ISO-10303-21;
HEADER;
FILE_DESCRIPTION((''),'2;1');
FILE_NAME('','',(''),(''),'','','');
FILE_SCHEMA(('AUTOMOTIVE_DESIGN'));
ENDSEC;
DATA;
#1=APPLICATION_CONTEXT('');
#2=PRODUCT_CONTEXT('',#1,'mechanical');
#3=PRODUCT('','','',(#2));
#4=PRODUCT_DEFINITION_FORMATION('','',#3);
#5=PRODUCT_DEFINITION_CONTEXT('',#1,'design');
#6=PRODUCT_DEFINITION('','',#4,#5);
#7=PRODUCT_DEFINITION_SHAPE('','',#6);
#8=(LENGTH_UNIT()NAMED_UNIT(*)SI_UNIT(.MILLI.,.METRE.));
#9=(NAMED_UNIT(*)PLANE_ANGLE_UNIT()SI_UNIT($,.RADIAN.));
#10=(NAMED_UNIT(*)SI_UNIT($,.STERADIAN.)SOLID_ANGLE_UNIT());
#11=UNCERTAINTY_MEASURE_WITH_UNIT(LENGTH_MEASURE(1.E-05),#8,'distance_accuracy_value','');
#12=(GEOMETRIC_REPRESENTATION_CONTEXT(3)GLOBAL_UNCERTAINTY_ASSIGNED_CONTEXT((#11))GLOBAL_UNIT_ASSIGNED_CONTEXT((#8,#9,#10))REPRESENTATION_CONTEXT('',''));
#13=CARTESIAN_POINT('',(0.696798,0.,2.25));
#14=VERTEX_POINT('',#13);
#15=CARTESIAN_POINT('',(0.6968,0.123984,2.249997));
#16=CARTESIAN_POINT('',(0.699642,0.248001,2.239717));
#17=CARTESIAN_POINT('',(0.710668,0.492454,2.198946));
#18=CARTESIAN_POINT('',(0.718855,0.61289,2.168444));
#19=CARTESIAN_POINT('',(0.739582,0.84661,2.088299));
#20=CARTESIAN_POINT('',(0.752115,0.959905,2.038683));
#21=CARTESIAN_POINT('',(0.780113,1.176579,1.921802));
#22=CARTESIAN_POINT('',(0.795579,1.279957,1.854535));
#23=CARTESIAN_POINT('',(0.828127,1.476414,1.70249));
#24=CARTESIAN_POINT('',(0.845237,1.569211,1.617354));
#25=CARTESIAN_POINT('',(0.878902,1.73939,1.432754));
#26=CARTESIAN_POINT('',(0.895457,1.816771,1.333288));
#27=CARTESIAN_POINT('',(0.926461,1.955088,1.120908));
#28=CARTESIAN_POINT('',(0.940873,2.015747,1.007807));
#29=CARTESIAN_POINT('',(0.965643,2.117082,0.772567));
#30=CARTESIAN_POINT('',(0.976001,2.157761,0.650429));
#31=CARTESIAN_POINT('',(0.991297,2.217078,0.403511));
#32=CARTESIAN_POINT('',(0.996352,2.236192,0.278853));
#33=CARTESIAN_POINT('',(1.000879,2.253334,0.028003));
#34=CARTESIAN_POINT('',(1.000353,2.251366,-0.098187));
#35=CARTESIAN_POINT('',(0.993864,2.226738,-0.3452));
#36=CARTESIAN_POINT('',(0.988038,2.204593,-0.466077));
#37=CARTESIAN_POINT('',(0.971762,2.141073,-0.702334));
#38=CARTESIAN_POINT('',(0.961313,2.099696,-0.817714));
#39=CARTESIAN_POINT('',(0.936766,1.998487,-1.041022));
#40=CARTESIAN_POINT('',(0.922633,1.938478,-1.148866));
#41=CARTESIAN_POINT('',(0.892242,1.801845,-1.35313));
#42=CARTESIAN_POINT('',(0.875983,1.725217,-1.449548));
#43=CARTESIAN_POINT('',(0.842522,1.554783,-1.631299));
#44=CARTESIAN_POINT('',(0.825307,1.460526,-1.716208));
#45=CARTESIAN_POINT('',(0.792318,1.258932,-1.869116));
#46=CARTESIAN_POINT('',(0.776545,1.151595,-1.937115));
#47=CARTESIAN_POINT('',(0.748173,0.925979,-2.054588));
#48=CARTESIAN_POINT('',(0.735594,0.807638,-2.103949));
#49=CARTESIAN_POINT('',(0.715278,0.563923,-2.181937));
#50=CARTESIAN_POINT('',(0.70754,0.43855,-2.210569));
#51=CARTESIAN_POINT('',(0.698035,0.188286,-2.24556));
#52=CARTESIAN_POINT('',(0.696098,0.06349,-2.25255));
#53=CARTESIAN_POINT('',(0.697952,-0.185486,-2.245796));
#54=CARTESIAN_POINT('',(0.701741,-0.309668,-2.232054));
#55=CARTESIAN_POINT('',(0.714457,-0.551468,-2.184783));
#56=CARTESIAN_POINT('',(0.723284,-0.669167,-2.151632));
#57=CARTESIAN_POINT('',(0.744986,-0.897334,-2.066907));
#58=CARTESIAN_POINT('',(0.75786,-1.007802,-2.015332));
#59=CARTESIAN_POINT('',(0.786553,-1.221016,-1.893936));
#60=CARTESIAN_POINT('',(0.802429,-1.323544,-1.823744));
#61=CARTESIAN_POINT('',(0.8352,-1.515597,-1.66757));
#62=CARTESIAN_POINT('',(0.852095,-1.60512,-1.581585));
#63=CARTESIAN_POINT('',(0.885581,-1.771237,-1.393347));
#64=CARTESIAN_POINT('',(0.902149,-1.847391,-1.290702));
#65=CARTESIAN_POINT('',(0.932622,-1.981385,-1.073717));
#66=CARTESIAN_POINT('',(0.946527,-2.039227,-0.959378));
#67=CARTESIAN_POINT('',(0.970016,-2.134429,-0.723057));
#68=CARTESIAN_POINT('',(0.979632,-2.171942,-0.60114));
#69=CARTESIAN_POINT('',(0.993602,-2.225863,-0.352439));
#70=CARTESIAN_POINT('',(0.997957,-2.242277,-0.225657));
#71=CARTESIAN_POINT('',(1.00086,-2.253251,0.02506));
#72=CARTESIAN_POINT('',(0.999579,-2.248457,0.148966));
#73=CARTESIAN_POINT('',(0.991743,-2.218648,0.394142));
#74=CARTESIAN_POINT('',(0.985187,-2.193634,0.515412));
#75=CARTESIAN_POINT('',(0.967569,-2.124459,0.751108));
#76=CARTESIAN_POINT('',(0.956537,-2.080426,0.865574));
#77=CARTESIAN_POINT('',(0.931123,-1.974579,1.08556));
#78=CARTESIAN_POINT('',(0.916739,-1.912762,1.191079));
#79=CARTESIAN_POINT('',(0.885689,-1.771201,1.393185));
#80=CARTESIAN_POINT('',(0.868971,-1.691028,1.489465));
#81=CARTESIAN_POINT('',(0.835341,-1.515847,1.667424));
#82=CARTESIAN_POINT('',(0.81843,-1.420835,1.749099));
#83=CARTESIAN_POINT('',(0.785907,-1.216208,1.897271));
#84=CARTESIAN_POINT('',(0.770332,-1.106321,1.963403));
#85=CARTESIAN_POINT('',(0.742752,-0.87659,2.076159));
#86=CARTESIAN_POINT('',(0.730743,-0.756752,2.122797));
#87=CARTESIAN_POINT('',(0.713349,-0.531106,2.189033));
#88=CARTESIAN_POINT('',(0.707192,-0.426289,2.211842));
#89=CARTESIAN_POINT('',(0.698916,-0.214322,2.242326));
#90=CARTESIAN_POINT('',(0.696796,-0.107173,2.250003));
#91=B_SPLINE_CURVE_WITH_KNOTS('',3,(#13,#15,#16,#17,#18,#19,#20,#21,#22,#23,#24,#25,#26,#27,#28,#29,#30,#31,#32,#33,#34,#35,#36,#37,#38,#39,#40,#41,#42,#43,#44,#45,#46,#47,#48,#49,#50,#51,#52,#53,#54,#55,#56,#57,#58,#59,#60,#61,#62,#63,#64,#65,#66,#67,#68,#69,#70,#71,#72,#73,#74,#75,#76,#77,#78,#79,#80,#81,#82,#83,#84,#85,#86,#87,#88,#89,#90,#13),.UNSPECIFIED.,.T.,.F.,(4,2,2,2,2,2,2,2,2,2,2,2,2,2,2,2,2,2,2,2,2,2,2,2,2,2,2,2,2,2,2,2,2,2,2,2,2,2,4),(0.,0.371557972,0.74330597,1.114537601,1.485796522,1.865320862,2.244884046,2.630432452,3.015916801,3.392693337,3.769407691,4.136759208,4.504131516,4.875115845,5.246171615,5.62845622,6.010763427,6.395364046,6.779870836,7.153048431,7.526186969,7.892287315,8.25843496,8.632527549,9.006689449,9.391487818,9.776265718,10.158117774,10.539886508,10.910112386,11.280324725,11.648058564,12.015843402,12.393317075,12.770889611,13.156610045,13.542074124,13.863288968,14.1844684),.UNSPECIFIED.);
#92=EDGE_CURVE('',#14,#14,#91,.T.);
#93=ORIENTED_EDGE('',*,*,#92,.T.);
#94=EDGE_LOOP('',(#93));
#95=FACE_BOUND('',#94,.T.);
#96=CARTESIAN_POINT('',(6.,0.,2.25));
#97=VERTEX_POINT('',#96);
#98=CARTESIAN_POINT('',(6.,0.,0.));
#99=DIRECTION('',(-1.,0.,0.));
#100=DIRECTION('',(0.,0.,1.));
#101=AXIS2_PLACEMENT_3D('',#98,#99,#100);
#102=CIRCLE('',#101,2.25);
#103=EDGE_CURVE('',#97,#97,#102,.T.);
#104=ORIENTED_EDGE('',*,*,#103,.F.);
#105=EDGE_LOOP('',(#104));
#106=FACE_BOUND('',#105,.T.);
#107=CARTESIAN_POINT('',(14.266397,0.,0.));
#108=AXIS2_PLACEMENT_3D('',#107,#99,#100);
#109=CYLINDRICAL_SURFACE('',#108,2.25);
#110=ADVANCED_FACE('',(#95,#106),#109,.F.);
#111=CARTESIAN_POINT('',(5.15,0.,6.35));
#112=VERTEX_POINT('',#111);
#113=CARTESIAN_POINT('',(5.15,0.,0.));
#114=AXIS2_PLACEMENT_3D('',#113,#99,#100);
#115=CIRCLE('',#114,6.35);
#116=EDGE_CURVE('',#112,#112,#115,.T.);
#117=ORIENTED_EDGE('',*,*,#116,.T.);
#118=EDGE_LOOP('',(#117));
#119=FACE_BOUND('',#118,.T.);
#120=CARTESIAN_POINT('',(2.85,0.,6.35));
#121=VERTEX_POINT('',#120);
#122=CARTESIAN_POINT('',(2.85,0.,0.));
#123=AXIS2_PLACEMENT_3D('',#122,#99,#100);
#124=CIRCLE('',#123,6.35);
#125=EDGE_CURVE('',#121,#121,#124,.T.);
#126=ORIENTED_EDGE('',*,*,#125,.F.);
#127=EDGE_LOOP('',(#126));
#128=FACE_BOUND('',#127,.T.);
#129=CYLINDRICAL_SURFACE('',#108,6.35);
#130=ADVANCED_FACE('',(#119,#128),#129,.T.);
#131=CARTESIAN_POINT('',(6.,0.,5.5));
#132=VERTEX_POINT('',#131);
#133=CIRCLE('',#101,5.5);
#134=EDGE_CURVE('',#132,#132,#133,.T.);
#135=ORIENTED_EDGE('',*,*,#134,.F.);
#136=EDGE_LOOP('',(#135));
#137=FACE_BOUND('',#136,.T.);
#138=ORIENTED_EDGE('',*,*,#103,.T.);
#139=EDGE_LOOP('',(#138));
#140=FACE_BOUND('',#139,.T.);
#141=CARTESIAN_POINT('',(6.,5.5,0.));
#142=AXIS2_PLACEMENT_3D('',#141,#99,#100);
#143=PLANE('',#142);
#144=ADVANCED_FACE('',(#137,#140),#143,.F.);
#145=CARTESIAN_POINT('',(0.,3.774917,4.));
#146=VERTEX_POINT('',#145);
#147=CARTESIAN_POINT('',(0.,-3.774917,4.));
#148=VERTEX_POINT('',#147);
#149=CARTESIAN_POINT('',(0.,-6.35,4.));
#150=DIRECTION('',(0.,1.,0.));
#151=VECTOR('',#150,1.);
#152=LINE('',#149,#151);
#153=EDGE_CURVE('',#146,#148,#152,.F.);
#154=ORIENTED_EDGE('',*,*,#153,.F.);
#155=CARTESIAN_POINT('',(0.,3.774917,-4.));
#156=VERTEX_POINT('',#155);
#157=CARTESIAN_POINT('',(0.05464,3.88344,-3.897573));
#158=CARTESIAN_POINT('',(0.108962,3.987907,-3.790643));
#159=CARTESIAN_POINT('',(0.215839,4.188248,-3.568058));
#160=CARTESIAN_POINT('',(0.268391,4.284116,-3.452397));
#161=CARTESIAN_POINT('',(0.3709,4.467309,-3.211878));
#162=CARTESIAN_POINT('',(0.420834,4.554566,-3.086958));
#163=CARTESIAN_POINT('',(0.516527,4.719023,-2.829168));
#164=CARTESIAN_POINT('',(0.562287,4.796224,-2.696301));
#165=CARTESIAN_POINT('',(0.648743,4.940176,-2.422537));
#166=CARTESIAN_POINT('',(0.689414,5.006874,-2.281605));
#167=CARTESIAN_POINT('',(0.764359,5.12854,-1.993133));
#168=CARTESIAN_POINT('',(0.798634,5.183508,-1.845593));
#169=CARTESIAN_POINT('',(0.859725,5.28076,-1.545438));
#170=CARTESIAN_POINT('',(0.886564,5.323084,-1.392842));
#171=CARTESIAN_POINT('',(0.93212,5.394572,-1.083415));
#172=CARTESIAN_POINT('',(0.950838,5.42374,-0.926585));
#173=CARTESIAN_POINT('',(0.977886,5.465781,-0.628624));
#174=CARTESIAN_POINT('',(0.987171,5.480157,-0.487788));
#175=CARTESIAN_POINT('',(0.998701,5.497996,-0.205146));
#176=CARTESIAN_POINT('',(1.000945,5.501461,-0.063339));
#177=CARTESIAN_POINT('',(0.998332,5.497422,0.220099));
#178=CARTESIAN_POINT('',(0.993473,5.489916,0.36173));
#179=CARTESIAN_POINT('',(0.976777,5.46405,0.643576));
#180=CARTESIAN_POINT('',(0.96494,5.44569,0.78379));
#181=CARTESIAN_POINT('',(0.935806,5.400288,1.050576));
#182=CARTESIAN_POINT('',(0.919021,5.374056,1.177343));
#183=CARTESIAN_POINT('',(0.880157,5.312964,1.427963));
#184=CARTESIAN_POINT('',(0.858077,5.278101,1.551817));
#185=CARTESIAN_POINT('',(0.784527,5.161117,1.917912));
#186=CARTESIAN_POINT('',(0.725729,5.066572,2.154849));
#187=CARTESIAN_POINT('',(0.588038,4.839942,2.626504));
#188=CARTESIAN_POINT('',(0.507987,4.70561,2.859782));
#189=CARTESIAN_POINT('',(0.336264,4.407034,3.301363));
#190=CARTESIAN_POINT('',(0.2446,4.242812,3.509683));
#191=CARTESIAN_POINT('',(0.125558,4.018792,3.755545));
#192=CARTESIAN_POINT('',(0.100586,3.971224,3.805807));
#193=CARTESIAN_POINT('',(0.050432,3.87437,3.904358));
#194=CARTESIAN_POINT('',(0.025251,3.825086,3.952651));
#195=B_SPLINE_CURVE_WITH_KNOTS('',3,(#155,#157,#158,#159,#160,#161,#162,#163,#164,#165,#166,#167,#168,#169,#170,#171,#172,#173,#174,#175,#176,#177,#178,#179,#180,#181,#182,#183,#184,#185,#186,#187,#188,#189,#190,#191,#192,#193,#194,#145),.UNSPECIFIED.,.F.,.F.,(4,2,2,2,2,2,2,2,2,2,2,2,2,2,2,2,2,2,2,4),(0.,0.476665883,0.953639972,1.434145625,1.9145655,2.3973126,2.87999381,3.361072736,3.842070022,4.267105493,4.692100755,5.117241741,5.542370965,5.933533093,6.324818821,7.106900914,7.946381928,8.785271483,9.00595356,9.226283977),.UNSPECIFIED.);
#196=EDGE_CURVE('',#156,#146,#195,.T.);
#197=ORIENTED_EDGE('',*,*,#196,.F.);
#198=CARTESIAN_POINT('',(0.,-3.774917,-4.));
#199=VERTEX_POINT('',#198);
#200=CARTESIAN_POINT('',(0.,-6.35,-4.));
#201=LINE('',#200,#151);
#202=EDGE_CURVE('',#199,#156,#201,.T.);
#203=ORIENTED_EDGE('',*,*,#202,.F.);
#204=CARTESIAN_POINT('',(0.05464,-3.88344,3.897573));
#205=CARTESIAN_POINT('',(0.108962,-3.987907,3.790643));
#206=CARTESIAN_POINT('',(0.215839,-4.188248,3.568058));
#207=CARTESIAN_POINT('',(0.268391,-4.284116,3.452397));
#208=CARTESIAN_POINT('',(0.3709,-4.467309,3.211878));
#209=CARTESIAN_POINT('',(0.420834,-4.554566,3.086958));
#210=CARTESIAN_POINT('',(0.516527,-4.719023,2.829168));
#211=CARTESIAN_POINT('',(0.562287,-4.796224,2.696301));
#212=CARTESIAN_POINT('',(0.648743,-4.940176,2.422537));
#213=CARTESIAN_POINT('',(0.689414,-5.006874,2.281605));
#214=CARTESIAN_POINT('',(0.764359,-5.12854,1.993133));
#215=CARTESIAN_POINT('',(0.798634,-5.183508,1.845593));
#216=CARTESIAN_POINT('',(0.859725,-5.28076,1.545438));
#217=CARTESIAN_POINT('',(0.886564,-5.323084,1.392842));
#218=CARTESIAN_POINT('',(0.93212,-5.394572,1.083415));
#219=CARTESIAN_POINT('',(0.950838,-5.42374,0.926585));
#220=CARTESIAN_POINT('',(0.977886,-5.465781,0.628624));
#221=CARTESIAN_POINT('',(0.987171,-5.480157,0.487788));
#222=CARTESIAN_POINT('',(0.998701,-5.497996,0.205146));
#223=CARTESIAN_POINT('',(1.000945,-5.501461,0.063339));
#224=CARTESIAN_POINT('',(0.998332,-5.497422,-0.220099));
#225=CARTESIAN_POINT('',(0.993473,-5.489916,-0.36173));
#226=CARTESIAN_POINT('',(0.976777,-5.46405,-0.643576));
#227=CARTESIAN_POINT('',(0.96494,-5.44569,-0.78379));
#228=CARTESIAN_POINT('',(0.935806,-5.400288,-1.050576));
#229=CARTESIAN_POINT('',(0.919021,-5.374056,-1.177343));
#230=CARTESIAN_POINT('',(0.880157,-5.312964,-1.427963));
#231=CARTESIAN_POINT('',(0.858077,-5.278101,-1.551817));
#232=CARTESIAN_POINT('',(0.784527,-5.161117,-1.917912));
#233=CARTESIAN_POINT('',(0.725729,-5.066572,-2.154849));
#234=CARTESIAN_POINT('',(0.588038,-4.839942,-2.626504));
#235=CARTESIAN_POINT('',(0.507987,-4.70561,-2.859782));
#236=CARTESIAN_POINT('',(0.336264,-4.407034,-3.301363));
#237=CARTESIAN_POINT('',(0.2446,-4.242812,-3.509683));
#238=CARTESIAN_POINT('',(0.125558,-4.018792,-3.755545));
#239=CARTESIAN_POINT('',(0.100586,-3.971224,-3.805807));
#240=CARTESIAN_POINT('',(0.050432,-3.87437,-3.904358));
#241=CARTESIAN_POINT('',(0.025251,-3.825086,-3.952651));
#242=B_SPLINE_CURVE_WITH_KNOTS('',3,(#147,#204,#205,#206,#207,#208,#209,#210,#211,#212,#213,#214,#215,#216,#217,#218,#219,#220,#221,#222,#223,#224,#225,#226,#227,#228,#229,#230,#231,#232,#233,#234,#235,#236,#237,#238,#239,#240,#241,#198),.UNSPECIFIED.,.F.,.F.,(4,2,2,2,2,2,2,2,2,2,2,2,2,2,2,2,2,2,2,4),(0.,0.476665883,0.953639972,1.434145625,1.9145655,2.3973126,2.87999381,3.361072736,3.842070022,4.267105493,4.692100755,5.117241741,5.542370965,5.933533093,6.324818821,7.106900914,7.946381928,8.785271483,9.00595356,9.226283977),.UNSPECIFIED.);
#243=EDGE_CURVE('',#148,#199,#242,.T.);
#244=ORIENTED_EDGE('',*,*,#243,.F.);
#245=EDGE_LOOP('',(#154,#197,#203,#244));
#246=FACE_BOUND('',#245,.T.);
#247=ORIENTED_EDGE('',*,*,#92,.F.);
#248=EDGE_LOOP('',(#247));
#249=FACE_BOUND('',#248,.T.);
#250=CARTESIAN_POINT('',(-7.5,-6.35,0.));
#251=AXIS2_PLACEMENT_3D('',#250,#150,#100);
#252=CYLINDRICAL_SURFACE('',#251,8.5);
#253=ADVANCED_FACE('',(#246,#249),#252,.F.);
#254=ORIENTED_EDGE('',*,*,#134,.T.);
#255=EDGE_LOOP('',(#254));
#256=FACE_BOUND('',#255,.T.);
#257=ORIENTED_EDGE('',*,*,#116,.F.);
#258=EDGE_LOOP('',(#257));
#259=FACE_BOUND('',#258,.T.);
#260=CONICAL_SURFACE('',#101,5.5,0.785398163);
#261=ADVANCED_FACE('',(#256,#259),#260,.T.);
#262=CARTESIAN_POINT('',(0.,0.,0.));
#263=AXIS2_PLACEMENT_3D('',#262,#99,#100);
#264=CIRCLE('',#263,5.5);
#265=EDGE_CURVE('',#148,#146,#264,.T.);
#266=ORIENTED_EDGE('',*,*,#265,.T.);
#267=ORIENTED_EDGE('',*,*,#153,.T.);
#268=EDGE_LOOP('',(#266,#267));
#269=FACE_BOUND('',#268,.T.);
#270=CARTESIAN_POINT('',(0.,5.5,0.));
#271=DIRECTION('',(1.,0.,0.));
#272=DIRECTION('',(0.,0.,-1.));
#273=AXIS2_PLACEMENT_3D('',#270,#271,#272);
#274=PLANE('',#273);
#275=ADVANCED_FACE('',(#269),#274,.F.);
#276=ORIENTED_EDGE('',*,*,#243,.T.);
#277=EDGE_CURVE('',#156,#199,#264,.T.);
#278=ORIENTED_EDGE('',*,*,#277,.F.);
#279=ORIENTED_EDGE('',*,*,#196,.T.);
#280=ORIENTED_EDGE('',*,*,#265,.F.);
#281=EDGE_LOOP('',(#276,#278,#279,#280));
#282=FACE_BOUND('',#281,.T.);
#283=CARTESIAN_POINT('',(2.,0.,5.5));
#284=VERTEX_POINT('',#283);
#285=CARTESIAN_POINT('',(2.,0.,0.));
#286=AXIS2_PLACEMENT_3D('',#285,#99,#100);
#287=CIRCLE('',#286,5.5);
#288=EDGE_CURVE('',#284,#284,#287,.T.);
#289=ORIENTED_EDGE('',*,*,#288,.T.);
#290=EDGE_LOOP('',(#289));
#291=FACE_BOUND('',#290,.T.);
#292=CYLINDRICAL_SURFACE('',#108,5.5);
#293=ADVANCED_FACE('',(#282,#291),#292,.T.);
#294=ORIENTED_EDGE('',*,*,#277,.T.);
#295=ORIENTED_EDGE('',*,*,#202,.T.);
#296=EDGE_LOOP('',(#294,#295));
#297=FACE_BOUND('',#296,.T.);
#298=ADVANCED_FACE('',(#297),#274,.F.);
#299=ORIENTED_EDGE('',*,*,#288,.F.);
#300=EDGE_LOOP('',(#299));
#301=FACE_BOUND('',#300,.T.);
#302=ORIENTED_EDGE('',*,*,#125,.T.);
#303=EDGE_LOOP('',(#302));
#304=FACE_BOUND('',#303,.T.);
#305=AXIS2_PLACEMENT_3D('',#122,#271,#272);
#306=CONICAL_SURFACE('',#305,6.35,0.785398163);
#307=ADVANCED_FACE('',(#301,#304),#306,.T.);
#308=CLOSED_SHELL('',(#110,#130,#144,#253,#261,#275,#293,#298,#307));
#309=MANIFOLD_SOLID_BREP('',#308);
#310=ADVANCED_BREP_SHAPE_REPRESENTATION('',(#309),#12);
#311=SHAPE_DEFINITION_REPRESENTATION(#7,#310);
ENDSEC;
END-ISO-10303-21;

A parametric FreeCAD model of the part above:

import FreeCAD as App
import Part
import Sketcher
from FreeCAD import Vector
Q = App.Units.Quantity

doc = App.newDocument("Part")
body = doc.addObject("PartDesign::Body", "Body")

sketch1 = doc.addObject("Sketcher::SketchObject", "Sketch")
body.addObject(sketch1)
sketch1.AttachmentSupport = (doc.XY_Plane, [""])
sketch1.MapMode = "FlatFace"
sketch1.addGeometry([
    Part.LineSegment(Vector(2, 5.5, 0), Vector(0, 5.5, 0)),
    Part.LineSegment(Vector(0, 5.5, 0), Vector(0, 2.6, 0)),
    Part.LineSegment(Vector(0, 2.6, 0), Vector(0.7, 2.2, 0)),
    Part.LineSegment(Vector(0.7, 2.2, 0), Vector(6, 2.2, 0)),
    Part.LineSegment(Vector(6, 2.2, 0), Vector(6, 5.5, 0)),
    Part.LineSegment(Vector(6, 5.5, 0), Vector(5.2, 6.3, 0)),
    Part.LineSegment(Vector(5.2, 6.3, 0), Vector(2.9, 6.3, 0)),
    Part.LineSegment(Vector(2.9, 6.3, 0), Vector(2, 5.5, 0)),
], False)
sketch1.addConstraint([
    Sketcher.Constraint("Coincident", 0, 2, 1, 1),
    Sketcher.Constraint("Coincident", 1, 2, 2, 1),
    Sketcher.Constraint("Coincident", 2, 2, 3, 1),
    Sketcher.Constraint("Coincident", 3, 2, 4, 1),
    Sketcher.Constraint("Coincident", 4, 2, 5, 1),
    Sketcher.Constraint("Coincident", 5, 2, 6, 1),
    Sketcher.Constraint("Coincident", 6, 2, 7, 1),
    Sketcher.Constraint("Coincident", 7, 2, 0, 1),
    Sketcher.Constraint("Horizontal", 0),
    Sketcher.Constraint("Vertical", 1),
    Sketcher.Constraint("Horizontal", 3),
    Sketcher.Constraint("Vertical", 4),
    Sketcher.Constraint("Horizontal", 6),
    Sketcher.Constraint("PointOnObject", 0, 2, -2),
    Sketcher.Constraint("Perpendicular", 5, 7),
    Sketcher.Constraint("Horizontal", 0, 2, 4, 2),
    Sketcher.Constraint("Equal", 5, 7),
    Sketcher.Constraint("DistanceX", 0, 2, 0, 1, Q("2 mm")),
    Sketcher.Constraint("Angle", 2, Q("-30 deg")),
    Sketcher.Constraint("DistanceX", 6, 2, 6, 1, Q("2.3 mm")),
    Sketcher.Constraint("DistanceX", -1, 1, 3, 2, Q("6 mm")),
    Sketcher.Constraint("Distance", 2, Q("0.8 mm")),
    Sketcher.Constraint("DistanceY", 1, 2, 1, 1, Q("2.85 mm")),
    Sketcher.Constraint("DistanceY", -1, 1, 0, 2, Q("5.5 mm")),
])
revolution = doc.addObject("PartDesign::Revolution", "Revolution")
body.addObject(revolution)
revolution.Profile = sketch1
revolution.ReferenceAxis = (sketch1, ["H_Axis"])
revolution.Angle = 360

sketch2 = doc.addObject("Sketcher::SketchObject", "Sketch001")
body.addObject(sketch2)
sketch2.AttachmentSupport = (doc.XZ_Plane, [""])
sketch2.MapMode = "FlatFace"
sketch2.addGeometry(Part.Circle(Vector(-8, 0, 0), Vector(0, 0, 1), 8), False)
sketch2.addConstraint([
    Sketcher.Constraint("PointOnObject", 0, 3, -1),
    Sketcher.Constraint("Diameter", 0, Q("17 mm")),
    Sketcher.Constraint("DistanceX", 0, 3, -1, 1, Q("7.5 mm")),
])
pocket1 = doc.addObject("PartDesign::Pocket", "Pocket")
body.addObject(pocket1)
pocket1.Profile = sketch2
pocket1.Type = "ThroughAll"
pocket1.Midplane = True

doc.recompute()
